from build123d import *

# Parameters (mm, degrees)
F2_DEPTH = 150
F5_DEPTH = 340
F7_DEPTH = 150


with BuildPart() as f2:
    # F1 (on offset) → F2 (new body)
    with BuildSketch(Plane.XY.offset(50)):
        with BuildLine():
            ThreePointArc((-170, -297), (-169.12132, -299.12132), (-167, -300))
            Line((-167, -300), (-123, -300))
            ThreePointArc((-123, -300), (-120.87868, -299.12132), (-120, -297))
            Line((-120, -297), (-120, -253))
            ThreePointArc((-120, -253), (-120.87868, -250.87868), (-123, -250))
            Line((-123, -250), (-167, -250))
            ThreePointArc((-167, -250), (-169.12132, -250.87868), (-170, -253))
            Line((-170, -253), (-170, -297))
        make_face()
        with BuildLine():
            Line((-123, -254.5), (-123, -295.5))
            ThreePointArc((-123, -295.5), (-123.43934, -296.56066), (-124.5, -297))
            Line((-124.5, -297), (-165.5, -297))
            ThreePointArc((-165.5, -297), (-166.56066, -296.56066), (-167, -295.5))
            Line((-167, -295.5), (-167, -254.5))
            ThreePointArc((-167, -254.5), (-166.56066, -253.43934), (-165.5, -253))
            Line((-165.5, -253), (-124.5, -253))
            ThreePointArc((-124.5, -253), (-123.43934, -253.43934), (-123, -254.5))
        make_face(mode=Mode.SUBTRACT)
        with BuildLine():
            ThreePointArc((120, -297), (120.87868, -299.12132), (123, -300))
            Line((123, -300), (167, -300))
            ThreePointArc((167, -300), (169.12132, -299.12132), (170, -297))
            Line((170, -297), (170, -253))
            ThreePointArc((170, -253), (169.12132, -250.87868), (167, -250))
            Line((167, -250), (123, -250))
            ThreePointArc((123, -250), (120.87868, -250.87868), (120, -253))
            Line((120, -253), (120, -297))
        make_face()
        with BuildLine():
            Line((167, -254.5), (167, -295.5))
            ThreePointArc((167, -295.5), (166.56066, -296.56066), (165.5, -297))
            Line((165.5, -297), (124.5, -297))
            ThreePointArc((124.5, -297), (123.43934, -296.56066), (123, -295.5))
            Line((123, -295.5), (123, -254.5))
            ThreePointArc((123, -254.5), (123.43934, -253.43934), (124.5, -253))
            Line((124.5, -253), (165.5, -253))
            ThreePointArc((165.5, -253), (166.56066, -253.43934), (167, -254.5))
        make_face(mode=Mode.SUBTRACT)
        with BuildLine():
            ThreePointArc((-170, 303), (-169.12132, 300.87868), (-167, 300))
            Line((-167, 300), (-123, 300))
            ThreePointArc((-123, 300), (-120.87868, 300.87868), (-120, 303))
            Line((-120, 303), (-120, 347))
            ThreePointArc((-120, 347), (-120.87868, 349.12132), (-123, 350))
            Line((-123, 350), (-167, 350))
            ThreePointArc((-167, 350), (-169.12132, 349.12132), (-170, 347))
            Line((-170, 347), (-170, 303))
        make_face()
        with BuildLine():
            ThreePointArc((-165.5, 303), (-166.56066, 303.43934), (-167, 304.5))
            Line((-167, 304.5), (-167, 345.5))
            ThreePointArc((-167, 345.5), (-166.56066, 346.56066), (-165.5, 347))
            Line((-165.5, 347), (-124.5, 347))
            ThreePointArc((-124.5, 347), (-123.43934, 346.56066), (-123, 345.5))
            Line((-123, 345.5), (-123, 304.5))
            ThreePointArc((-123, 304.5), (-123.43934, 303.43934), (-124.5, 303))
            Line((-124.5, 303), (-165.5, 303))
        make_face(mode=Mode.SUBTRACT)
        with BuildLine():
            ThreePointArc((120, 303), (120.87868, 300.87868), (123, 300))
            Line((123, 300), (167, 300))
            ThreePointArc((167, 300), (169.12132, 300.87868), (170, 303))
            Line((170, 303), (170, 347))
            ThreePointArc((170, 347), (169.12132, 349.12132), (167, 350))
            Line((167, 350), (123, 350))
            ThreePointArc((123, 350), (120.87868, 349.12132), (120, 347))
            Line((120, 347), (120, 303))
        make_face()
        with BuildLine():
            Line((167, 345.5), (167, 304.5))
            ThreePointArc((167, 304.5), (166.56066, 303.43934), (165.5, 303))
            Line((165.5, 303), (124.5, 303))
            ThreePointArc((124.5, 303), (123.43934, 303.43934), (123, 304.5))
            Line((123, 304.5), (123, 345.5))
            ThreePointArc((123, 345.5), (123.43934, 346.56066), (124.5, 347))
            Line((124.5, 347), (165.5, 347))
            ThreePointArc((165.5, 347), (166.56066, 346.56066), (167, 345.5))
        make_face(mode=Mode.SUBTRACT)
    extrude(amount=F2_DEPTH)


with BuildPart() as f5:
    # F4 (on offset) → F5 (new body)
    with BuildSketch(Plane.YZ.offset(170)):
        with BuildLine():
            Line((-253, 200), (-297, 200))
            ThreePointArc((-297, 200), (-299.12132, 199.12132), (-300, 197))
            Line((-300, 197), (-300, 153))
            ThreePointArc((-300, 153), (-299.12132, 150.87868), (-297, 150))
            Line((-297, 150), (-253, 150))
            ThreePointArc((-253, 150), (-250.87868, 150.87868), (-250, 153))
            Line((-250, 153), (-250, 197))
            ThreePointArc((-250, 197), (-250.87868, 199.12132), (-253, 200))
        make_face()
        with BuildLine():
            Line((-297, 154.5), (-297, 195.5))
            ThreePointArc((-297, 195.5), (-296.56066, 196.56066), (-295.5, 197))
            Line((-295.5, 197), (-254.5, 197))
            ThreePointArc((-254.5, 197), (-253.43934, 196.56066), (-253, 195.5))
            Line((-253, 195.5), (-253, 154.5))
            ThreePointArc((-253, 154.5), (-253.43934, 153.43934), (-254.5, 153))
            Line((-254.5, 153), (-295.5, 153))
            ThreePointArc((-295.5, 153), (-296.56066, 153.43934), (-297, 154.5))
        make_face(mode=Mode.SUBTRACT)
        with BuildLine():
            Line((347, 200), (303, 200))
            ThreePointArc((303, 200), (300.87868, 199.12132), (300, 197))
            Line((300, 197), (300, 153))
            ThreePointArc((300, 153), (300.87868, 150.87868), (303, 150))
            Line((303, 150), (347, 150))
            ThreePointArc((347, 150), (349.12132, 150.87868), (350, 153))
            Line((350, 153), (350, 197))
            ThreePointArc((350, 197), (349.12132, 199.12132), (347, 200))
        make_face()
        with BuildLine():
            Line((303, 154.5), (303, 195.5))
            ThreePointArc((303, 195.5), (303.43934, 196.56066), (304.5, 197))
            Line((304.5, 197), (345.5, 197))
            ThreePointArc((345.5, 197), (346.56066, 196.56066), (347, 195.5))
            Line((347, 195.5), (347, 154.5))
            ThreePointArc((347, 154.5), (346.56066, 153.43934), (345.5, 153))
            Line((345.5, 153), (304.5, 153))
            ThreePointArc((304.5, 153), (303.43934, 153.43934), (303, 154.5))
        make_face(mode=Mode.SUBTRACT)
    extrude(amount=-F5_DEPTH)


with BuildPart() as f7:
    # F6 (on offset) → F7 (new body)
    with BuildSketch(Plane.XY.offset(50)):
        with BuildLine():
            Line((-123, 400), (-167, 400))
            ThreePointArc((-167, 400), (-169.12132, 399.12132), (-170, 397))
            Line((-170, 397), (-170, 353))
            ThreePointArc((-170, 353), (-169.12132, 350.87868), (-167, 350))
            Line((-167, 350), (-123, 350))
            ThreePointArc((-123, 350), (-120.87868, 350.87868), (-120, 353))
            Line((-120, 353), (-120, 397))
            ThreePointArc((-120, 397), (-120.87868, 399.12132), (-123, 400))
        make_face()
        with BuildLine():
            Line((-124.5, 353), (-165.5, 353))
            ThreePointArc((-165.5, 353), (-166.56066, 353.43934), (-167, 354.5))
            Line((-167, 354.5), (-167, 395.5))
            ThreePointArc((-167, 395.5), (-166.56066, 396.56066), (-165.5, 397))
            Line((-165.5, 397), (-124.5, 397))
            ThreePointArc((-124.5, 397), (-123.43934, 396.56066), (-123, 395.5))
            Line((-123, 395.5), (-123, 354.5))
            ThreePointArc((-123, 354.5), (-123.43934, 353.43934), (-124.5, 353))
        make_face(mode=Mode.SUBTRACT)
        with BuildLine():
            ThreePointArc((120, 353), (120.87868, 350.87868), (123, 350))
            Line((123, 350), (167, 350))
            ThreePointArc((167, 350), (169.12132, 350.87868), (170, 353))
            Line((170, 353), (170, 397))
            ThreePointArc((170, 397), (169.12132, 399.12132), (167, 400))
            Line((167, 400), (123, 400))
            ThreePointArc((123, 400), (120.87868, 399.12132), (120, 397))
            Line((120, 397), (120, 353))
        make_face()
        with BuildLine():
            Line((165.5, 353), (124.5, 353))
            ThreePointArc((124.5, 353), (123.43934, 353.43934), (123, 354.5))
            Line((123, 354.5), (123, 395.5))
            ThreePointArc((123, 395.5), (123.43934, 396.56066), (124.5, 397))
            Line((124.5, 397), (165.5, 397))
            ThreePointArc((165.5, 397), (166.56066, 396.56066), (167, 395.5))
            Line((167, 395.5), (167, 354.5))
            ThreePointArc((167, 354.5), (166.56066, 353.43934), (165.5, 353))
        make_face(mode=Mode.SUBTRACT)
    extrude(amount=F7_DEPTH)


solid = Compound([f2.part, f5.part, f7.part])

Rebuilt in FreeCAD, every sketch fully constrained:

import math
import FreeCAD as App
import Part
import Sketcher
from FreeCAD import Vector

doc = App.newDocument("Part")
body = doc.addObject("PartDesign::Body", "Body")
body.AllowCompound = True

sketch1 = body.newObject("Sketcher::SketchObject", "Sketch")
sketch1.AttachmentSupport = (doc.getObject("XY_Plane"), [""])
sketch1.MapMode = "FlatFace"
sketch1.AttachmentOffset = App.Placement(Vector(0, 0, 50), App.Rotation())
sketch1.addGeometry([
    Part.ArcOfCircle(Part.Circle(Vector(-167, -297, 0), Vector(0, 0, 1), 3), math.radians(-180), math.radians(-90)),
    Part.LineSegment(Vector(-167, -300, 0), Vector(-123, -300, 0)),
    Part.ArcOfCircle(Part.Circle(Vector(-123, -297, 0), Vector(0, 0, 1), 3), math.radians(-90), math.radians(0)),
    Part.LineSegment(Vector(-120, -297, 0), Vector(-120, -253, 0)),
    Part.ArcOfCircle(Part.Circle(Vector(-123, -253, 0), Vector(0, 0, 1), 3), math.radians(0), math.radians(90)),
    Part.LineSegment(Vector(-123, -250, 0), Vector(-167, -250, 0)),
    Part.ArcOfCircle(Part.Circle(Vector(-167, -253, 0), Vector(0, 0, 1), 3), math.radians(90), math.radians(180)),
    Part.LineSegment(Vector(-170, -253, 0), Vector(-170, -297, 0)),
    Part.ArcOfCircle(Part.Circle(Vector(-124.5, -254.5, 0), Vector(0, 0, 1), 1.5), math.radians(0), math.radians(90)),
    Part.LineSegment(Vector(-123, -254.5, 0), Vector(-123, -295.5, 0)),
    Part.ArcOfCircle(Part.Circle(Vector(-124.5, -295.5, 0), Vector(0, 0, 1), 1.5), math.radians(-90), math.radians(0)),
    Part.LineSegment(Vector(-124.5, -297, 0), Vector(-165.5, -297, 0)),
    Part.ArcOfCircle(Part.Circle(Vector(-165.5, -295.5, 0), Vector(0, 0, 1), 1.5), math.radians(-180), math.radians(-90)),
    Part.LineSegment(Vector(-167, -295.5, 0), Vector(-167, -254.5, 0)),
    Part.ArcOfCircle(Part.Circle(Vector(-165.5, -254.5, 0), Vector(0, 0, 1), 1.5), math.radians(90), math.radians(180)),
    Part.LineSegment(Vector(-165.5, -253, 0), Vector(-124.5, -253, 0)),
    Part.ArcOfCircle(Part.Circle(Vector(123, -297, 0), Vector(0, 0, 1), 3), math.radians(-180), math.radians(-90)),
    Part.LineSegment(Vector(123, -300, 0), Vector(167, -300, 0)),
    Part.ArcOfCircle(Part.Circle(Vector(167, -297, 0), Vector(0, 0, 1), 3), math.radians(-90), math.radians(0)),
    Part.LineSegment(Vector(170, -297, 0), Vector(170, -253, 0)),
    Part.ArcOfCircle(Part.Circle(Vector(167, -253, 0), Vector(0, 0, 1), 3), math.radians(0), math.radians(90)),
    Part.LineSegment(Vector(167, -250, 0), Vector(123, -250, 0)),
    Part.ArcOfCircle(Part.Circle(Vector(123, -253, 0), Vector(0, 0, 1), 3), math.radians(90), math.radians(180)),
    Part.LineSegment(Vector(120, -253, 0), Vector(120, -297, 0)),
    Part.ArcOfCircle(Part.Circle(Vector(165.5, -254.5, 0), Vector(0, 0, 1), 1.5), math.radians(0), math.radians(90)),
    Part.LineSegment(Vector(167, -254.5, 0), Vector(167, -295.5, 0)),
    Part.ArcOfCircle(Part.Circle(Vector(165.5, -295.5, 0), Vector(0, 0, 1), 1.5), math.radians(-90), math.radians(0)),
    Part.LineSegment(Vector(165.5, -297, 0), Vector(124.5, -297, 0)),
    Part.ArcOfCircle(Part.Circle(Vector(124.5, -295.5, 0), Vector(0, 0, 1), 1.5), math.radians(-180), math.radians(-90)),
    Part.LineSegment(Vector(123, -295.5, 0), Vector(123, -254.5, 0)),
    Part.ArcOfCircle(Part.Circle(Vector(124.5, -254.5, 0), Vector(0, 0, 1), 1.5), math.radians(90), math.radians(180)),
    Part.LineSegment(Vector(124.5, -253, 0), Vector(165.5, -253, 0)),
    Part.ArcOfCircle(Part.Circle(Vector(-167, 303, 0), Vector(0, 0, 1), 3), math.radians(-180), math.radians(-90)),
    Part.LineSegment(Vector(-167, 300, 0), Vector(-123, 300, 0)),
    Part.ArcOfCircle(Part.Circle(Vector(-123, 303, 0), Vector(0, 0, 1), 3), math.radians(-90), math.radians(0)),
    Part.LineSegment(Vector(-120, 303, 0), Vector(-120, 347, 0)),
    Part.ArcOfCircle(Part.Circle(Vector(-123, 347, 0), Vector(0, 0, 1), 3), math.radians(0), math.radians(90)),
    Part.LineSegment(Vector(-123, 350, 0), Vector(-167, 350, 0)),
    Part.ArcOfCircle(Part.Circle(Vector(-167, 347, 0), Vector(0, 0, 1), 3), math.radians(90), math.radians(180)),
    Part.LineSegment(Vector(-170, 347, 0), Vector(-170, 303, 0)),
    Part.LineSegment(Vector(-124.5, 303, 0), Vector(-165.5, 303, 0)),
    Part.ArcOfCircle(Part.Circle(Vector(-165.5, 304.5, 0), Vector(0, 0, 1), 1.5), math.radians(-180), math.radians(-90)),
    Part.LineSegment(Vector(-167, 304.5, 0), Vector(-167, 345.5, 0)),
    Part.ArcOfCircle(Part.Circle(Vector(-165.5, 345.5, 0), Vector(0, 0, 1), 1.5), math.radians(90), math.radians(180)),
    Part.LineSegment(Vector(-165.5, 347, 0), Vector(-124.5, 347, 0)),
    Part.ArcOfCircle(Part.Circle(Vector(-124.5, 345.5, 0), Vector(0, 0, 1), 1.5), math.radians(0), math.radians(90)),
    Part.LineSegment(Vector(-123, 345.5, 0), Vector(-123, 304.5, 0)),
    Part.ArcOfCircle(Part.Circle(Vector(-124.5, 304.5, 0), Vector(0, 0, 1), 1.5), math.radians(-90), math.radians(0)),
    Part.ArcOfCircle(Part.Circle(Vector(123, 303, 0), Vector(0, 0, 1), 3), math.radians(-180), math.radians(-90)),
    Part.LineSegment(Vector(123, 300, 0), Vector(167, 300, 0)),
    Part.ArcOfCircle(Part.Circle(Vector(167, 303, 0), Vector(0, 0, 1), 3), math.radians(-90), math.radians(0)),
    Part.LineSegment(Vector(170, 303, 0), Vector(170, 347, 0)),
    Part.ArcOfCircle(Part.Circle(Vector(167, 347, 0), Vector(0, 0, 1), 3), math.radians(0), math.radians(90)),
    Part.LineSegment(Vector(167, 350, 0), Vector(123, 350, 0)),
    Part.ArcOfCircle(Part.Circle(Vector(123, 347, 0), Vector(0, 0, 1), 3), math.radians(90), math.radians(180)),
    Part.LineSegment(Vector(120, 347, 0), Vector(120, 303, 0)),
    Part.ArcOfCircle(Part.Circle(Vector(165.5, 345.5, 0), Vector(0, 0, 1), 1.5), math.radians(0), math.radians(90)),
    Part.LineSegment(Vector(167, 345.5, 0), Vector(167, 304.5, 0)),
    Part.ArcOfCircle(Part.Circle(Vector(165.5, 304.5, 0), Vector(0, 0, 1), 1.5), math.radians(-90), math.radians(0)),
    Part.LineSegment(Vector(165.5, 303, 0), Vector(124.5, 303, 0)),
    Part.ArcOfCircle(Part.Circle(Vector(124.5, 304.5, 0), Vector(0, 0, 1), 1.5), math.radians(-180), math.radians(-90)),
    Part.LineSegment(Vector(123, 304.5, 0), Vector(123, 345.5, 0)),
    Part.ArcOfCircle(Part.Circle(Vector(124.5, 345.5, 0), Vector(0, 0, 1), 1.5), math.radians(90), math.radians(180)),
    Part.LineSegment(Vector(124.5, 347, 0), Vector(165.5, 347, 0)),
], False)
sketch1.addConstraint([
    Sketcher.Constraint("Tangent", 0, 2, 1, 1),
    Sketcher.Constraint("Tangent", 1, 2, 2, 1),
    Sketcher.Constraint("Tangent", 2, 2, 3, 1),
    Sketcher.Constraint("Tangent", 3, 2, 4, 1),
    Sketcher.Constraint("Tangent", 4, 2, 5, 1),
    Sketcher.Constraint("Tangent", 5, 2, 6, 1),
    Sketcher.Constraint("Tangent", 6, 2, 7, 1),
    Sketcher.Constraint("Tangent", 7, 2, 0, 1),
    Sketcher.Constraint("Tangent", 8, 1, 9, 1),
    Sketcher.Constraint("Tangent", 9, 2, 10, 2),
    Sketcher.Constraint("Tangent", 10, 1, 11, 1),
    Sketcher.Constraint("Tangent", 11, 2, 12, 2),
    Sketcher.Constraint("Tangent", 12, 1, 13, 1),
    Sketcher.Constraint("Tangent", 13, 2, 14, 2),
    Sketcher.Constraint("Tangent", 14, 1, 15, 1),
    Sketcher.Constraint("Tangent", 15, 2, 8, 2),
    Sketcher.Constraint("Tangent", 16, 2, 17, 1),
    Sketcher.Constraint("Tangent", 17, 2, 18, 1),
    Sketcher.Constraint("Tangent", 18, 2, 19, 1),
    Sketcher.Constraint("Tangent", 19, 2, 20, 1),
    Sketcher.Constraint("Tangent", 20, 2, 21, 1),
    Sketcher.Constraint("Tangent", 21, 2, 22, 1),
    Sketcher.Constraint("Tangent", 22, 2, 23, 1),
    Sketcher.Constraint("Tangent", 23, 2, 16, 1),
    Sketcher.Constraint("Tangent", 24, 1, 25, 1),
    Sketcher.Constraint("Tangent", 25, 2, 26, 2),
    Sketcher.Constraint("Tangent", 26, 1, 27, 1),
    Sketcher.Constraint("Tangent", 27, 2, 28, 2),
    Sketcher.Constraint("Tangent", 28, 1, 29, 1),
    Sketcher.Constraint("Tangent", 29, 2, 30, 2),
    Sketcher.Constraint("Tangent", 30, 1, 31, 1),
    Sketcher.Constraint("Tangent", 31, 2, 24, 2),
    Sketcher.Constraint("Tangent", 32, 2, 33, 1),
    Sketcher.Constraint("Tangent", 33, 2, 34, 1),
    Sketcher.Constraint("Tangent", 34, 2, 35, 1),
    Sketcher.Constraint("Tangent", 35, 2, 36, 1),
    Sketcher.Constraint("Tangent", 36, 2, 37, 1),
    Sketcher.Constraint("Tangent", 37, 2, 38, 1),
    Sketcher.Constraint("Tangent", 38, 2, 39, 1),
    Sketcher.Constraint("Tangent", 39, 2, 32, 1),
    Sketcher.Constraint("Tangent", 40, 2, 41, 2),
    Sketcher.Constraint("Tangent", 41, 1, 42, 1),
    Sketcher.Constraint("Tangent", 42, 2, 43, 2),
    Sketcher.Constraint("Tangent", 43, 1, 44, 1),
    Sketcher.Constraint("Tangent", 44, 2, 45, 2),
    Sketcher.Constraint("Tangent", 45, 1, 46, 1),
    Sketcher.Constraint("Tangent", 46, 2, 47, 2),
    Sketcher.Constraint("Tangent", 47, 1, 40, 1),
    Sketcher.Constraint("Tangent", 48, 2, 49, 1),
    Sketcher.Constraint("Tangent", 49, 2, 50, 1),
    Sketcher.Constraint("Tangent", 50, 2, 51, 1),
    Sketcher.Constraint("Tangent", 51, 2, 52, 1),
    Sketcher.Constraint("Tangent", 52, 2, 53, 1),
    Sketcher.Constraint("Tangent", 53, 2, 54, 1),
    Sketcher.Constraint("Tangent", 54, 2, 55, 1),
    Sketcher.Constraint("Tangent", 55, 2, 48, 1),
    Sketcher.Constraint("Tangent", 56, 1, 57, 1),
    Sketcher.Constraint("Tangent", 57, 2, 58, 2),
    Sketcher.Constraint("Tangent", 58, 1, 59, 1),
    Sketcher.Constraint("Tangent", 59, 2, 60, 2),
    Sketcher.Constraint("Tangent", 60, 1, 61, 1),
    Sketcher.Constraint("Tangent", 61, 2, 62, 2),
    Sketcher.Constraint("Tangent", 62, 1, 63, 1),
    Sketcher.Constraint("Tangent", 63, 2, 56, 2),
    Sketcher.Constraint("Horizontal", 1),
    Sketcher.Constraint("Vertical", 3),
    Sketcher.Constraint("Horizontal", 5),
    Sketcher.Constraint("Vertical", 7),
    Sketcher.Constraint("Vertical", 9),
    Sketcher.Constraint("Horizontal", 11),
    Sketcher.Constraint("Vertical", 13),
    Sketcher.Constraint("Horizontal", 15),
    Sketcher.Constraint("Horizontal", 17),
    Sketcher.Constraint("Vertical", 19),
    Sketcher.Constraint("Horizontal", 21),
    Sketcher.Constraint("Vertical", 23),
    Sketcher.Constraint("Vertical", 25),
    Sketcher.Constraint("Horizontal", 27),
    Sketcher.Constraint("Vertical", 29),
    Sketcher.Constraint("Horizontal", 31),
    Sketcher.Constraint("Horizontal", 33),
    Sketcher.Constraint("Vertical", 35),
    Sketcher.Constraint("Horizontal", 37),
    Sketcher.Constraint("Vertical", 39),
    Sketcher.Constraint("Horizontal", 40),
    Sketcher.Constraint("Vertical", 42),
    Sketcher.Constraint("Horizontal", 44),
    Sketcher.Constraint("Vertical", 46),
    Sketcher.Constraint("Horizontal", 49),
    Sketcher.Constraint("Vertical", 51),
    Sketcher.Constraint("Horizontal", 53),
    Sketcher.Constraint("Vertical", 55),
    Sketcher.Constraint("Vertical", 57),
    Sketcher.Constraint("Horizontal", 59),
    Sketcher.Constraint("Vertical", 61),
    Sketcher.Constraint("Horizontal", 63),
    Sketcher.Constraint("Equal", 0, 2),
    Sketcher.Constraint("Equal", 2, 4),
    Sketcher.Constraint("Equal", 4, 6),
    Sketcher.Constraint("Equal", 8, 10),
    Sketcher.Constraint("Equal", 10, 12),
    Sketcher.Constraint("Equal", 12, 14),
    Sketcher.Constraint("Equal", 6, 16),
    Sketcher.Constraint("Equal", 16, 18),
    Sketcher.Constraint("Equal", 18, 20),
    Sketcher.Constraint("Equal", 20, 22),
    Sketcher.Constraint("Equal", 14, 24),
    Sketcher.Constraint("Equal", 24, 26),
    Sketcher.Constraint("Equal", 26, 28),
    Sketcher.Constraint("Equal", 28, 30),
    Sketcher.Constraint("Equal", 22, 32),
    Sketcher.Constraint("Equal", 32, 34),
    Sketcher.Constraint("Equal", 34, 36),
    Sketcher.Constraint("Equal", 36, 38),
    Sketcher.Constraint("Equal", 30, 41),
    Sketcher.Constraint("Equal", 41, 43),
    Sketcher.Constraint("Equal", 43, 45),
    Sketcher.Constraint("Equal", 45, 47),
    Sketcher.Constraint("Equal", 38, 48),
    Sketcher.Constraint("Equal", 48, 50),
    Sketcher.Constraint("Equal", 50, 52),
    Sketcher.Constraint("Equal", 52, 54),
    Sketcher.Constraint("Equal", 47, 56),
    Sketcher.Constraint("Equal", 56, 58),
    Sketcher.Constraint("Equal", 58, 60),
    Sketcher.Constraint("Equal", 60, 62),
    Sketcher.Constraint("Symmetric", 17, 2, 32, 2, -1, 1),
    Sketcher.Constraint("Symmetric", 1, 2, 48, 2, -1, 1),
    Sketcher.Constraint("Symmetric", 2, 3, 16, 3, -2),
    Sketcher.Constraint("Symmetric", 6, 3, 20, 3, -2),
    Sketcher.Constraint("Symmetric", 14, 3, 24, 3, -2),
    Sketcher.Constraint("Symmetric", 10, 3, 28, 3, -2),
    Sketcher.Constraint("Symmetric", 38, 3, 52, 3, -2),
    Sketcher.Constraint("Symmetric", 43, 3, 56, 3, -2),
    Sketcher.Constraint("Symmetric", 47, 3, 60, 3, -2),
    Sketcher.Constraint("Horizontal", 7, 2, 10, 1),
    Sketcher.Constraint("Horizontal", 6, 2, 14, 1),
    Sketcher.Constraint("Horizontal", 39, 2, 40, 2),
    Sketcher.Constraint("Horizontal", 38, 2, 43, 1),
    Sketcher.Constraint("Vertical", 4, 3, 34, 3),
    Sketcher.Constraint("Vertical", 14, 3, 41, 3),
    Sketcher.Constraint("Vertical", 10, 3, 45, 3),
    Sketcher.Constraint("Vertical", 4, 2, 8, 1),
    Sketcher.Constraint("Vertical", 5, 2, 12, 1),
    Sketcher.Constraint("Equal", 53, 3),
    Sketcher.Constraint("Equal", 23, 35),
    Sketcher.Constraint("Radius", 0, 3.000001),
    Sketcher.Constraint("Radius", 8, 1.500001),
    Sketcher.Constraint("DistanceX", 1, 1, 1, 2, 44.0),
    Sketcher.Constraint("DistanceX", 0, 3, -1, 1, 166.999999),
    Sketcher.Constraint("DistanceY", 0, 3, -1, 1, 296.999999),
])
pad1 = body.newObject("PartDesign::Pad", "Pad")
pad1.Profile = sketch1
pad1.Length = 150
body2 = doc.addObject("PartDesign::Body", "Body001")
body2.AllowCompound = True

sketch2 = body2.newObject("Sketcher::SketchObject", "Sketch001")
sketch2.AttachmentSupport = (doc.getObject("YZ_Plane001"), [""])
sketch2.MapMode = "FlatFace"
sketch2.AttachmentOffset = App.Placement(Vector(0, 0, 170), App.Rotation())
sketch2.addGeometry([
    Part.LineSegment(Vector(-253, 200, 0), Vector(-297, 200, 0)),
    Part.ArcOfCircle(Part.Circle(Vector(-297, 197, 0), Vector(0, 0, 1), 3), math.radians(90), math.radians(180)),
    Part.LineSegment(Vector(-300, 197, 0), Vector(-300, 153, 0)),
    Part.ArcOfCircle(Part.Circle(Vector(-297, 153, 0), Vector(0, 0, 1), 3), math.radians(-180), math.radians(-90)),
    Part.LineSegment(Vector(-297, 150, 0), Vector(-253, 150, 0)),
    Part.ArcOfCircle(Part.Circle(Vector(-253, 153, 0), Vector(0, 0, 1), 3), math.radians(-90), math.radians(0)),
    Part.LineSegment(Vector(-250, 153, 0), Vector(-250, 197, 0)),
    Part.ArcOfCircle(Part.Circle(Vector(-253, 197, 0), Vector(0, 0, 1), 3), math.radians(0), math.radians(90)),
    Part.ArcOfCircle(Part.Circle(Vector(-295.5, 154.5, 0), Vector(0, 0, 1), 1.5), math.radians(-180), math.radians(-90)),
    Part.LineSegment(Vector(-297, 154.5, 0), Vector(-297, 195.5, 0)),
    Part.ArcOfCircle(Part.Circle(Vector(-295.5, 195.5, 0), Vector(0, 0, 1), 1.5), math.radians(90), math.radians(180)),
    Part.LineSegment(Vector(-295.5, 197, 0), Vector(-254.5, 197, 0)),
    Part.ArcOfCircle(Part.Circle(Vector(-254.5, 195.5, 0), Vector(0, 0, 1), 1.5), math.radians(0), math.radians(90)),
    Part.LineSegment(Vector(-253, 195.5, 0), Vector(-253, 154.5, 0)),
    Part.ArcOfCircle(Part.Circle(Vector(-254.5, 154.5, 0), Vector(0, 0, 1), 1.5), math.radians(-90), math.radians(0)),
    Part.LineSegment(Vector(-254.5, 153, 0), Vector(-295.5, 153, 0)),
    Part.LineSegment(Vector(347, 200, 0), Vector(303, 200, 0)),
    Part.ArcOfCircle(Part.Circle(Vector(303, 197, 0), Vector(0, 0, 1), 3), math.radians(90), math.radians(180)),
    Part.LineSegment(Vector(300, 197, 0), Vector(300, 153, 0)),
    Part.ArcOfCircle(Part.Circle(Vector(303, 153, 0), Vector(0, 0, 1), 3), math.radians(-180), math.radians(-90)),
    Part.LineSegment(Vector(303, 150, 0), Vector(347, 150, 0)),
    Part.ArcOfCircle(Part.Circle(Vector(347, 153, 0), Vector(0, 0, 1), 3), math.radians(-90), math.radians(0)),
    Part.LineSegment(Vector(350, 153, 0), Vector(350, 197, 0)),
    Part.ArcOfCircle(Part.Circle(Vector(347, 197, 0), Vector(0, 0, 1), 3), math.radians(0), math.radians(90)),
    Part.ArcOfCircle(Part.Circle(Vector(304.5, 154.5, 0), Vector(0, 0, 1), 1.5), math.radians(-180), math.radians(-90)),
    Part.LineSegment(Vector(303, 154.5, 0), Vector(303, 195.5, 0)),
    Part.ArcOfCircle(Part.Circle(Vector(304.5, 195.5, 0), Vector(0, 0, 1), 1.5), math.radians(90), math.radians(180)),
    Part.LineSegment(Vector(304.5, 197, 0), Vector(345.5, 197, 0)),
    Part.ArcOfCircle(Part.Circle(Vector(345.5, 195.5, 0), Vector(0, 0, 1), 1.5), math.radians(0), math.radians(90)),
    Part.LineSegment(Vector(347, 195.5, 0), Vector(347, 154.5, 0)),
    Part.ArcOfCircle(Part.Circle(Vector(345.5, 154.5, 0), Vector(0, 0, 1), 1.5), math.radians(-90), math.radians(0)),
    Part.LineSegment(Vector(345.5, 153, 0), Vector(304.5, 153, 0)),
], False)
sketch2.addConstraint([
    Sketcher.Constraint("Tangent", 0, 2, 1, 1),
    Sketcher.Constraint("Tangent", 1, 2, 2, 1),
    Sketcher.Constraint("Tangent", 2, 2, 3, 1),
    Sketcher.Constraint("Tangent", 3, 2, 4, 1),
    Sketcher.Constraint("Tangent", 4, 2, 5, 1),
    Sketcher.Constraint("Tangent", 5, 2, 6, 1),
    Sketcher.Constraint("Tangent", 6, 2, 7, 1),
    Sketcher.Constraint("Tangent", 7, 2, 0, 1),
    Sketcher.Constraint("Tangent", 8, 1, 9, 1),
    Sketcher.Constraint("Tangent", 9, 2, 10, 2),
    Sketcher.Constraint("Tangent", 10, 1, 11, 1),
    Sketcher.Constraint("Tangent", 11, 2, 12, 2),
    Sketcher.Constraint("Tangent", 12, 1, 13, 1),
    Sketcher.Constraint("Tangent", 13, 2, 14, 2),
    Sketcher.Constraint("Tangent", 14, 1, 15, 1),
    Sketcher.Constraint("Tangent", 15, 2, 8, 2),
    Sketcher.Constraint("Tangent", 16, 2, 17, 1),
    Sketcher.Constraint("Tangent", 17, 2, 18, 1),
    Sketcher.Constraint("Tangent", 18, 2, 19, 1),
    Sketcher.Constraint("Tangent", 19, 2, 20, 1),
    Sketcher.Constraint("Tangent", 20, 2, 21, 1),
    Sketcher.Constraint("Tangent", 21, 2, 22, 1),
    Sketcher.Constraint("Tangent", 22, 2, 23, 1),
    Sketcher.Constraint("Tangent", 23, 2, 16, 1),
    Sketcher.Constraint("Tangent", 24, 1, 25, 1),
    Sketcher.Constraint("Tangent", 25, 2, 26, 2),
    Sketcher.Constraint("Tangent", 26, 1, 27, 1),
    Sketcher.Constraint("Tangent", 27, 2, 28, 2),
    Sketcher.Constraint("Tangent", 28, 1, 29, 1),
    Sketcher.Constraint("Tangent", 29, 2, 30, 2),
    Sketcher.Constraint("Tangent", 30, 1, 31, 1),
    Sketcher.Constraint("Tangent", 31, 2, 24, 2),
    Sketcher.Constraint("Horizontal", 0),
    Sketcher.Constraint("Vertical", 2),
    Sketcher.Constraint("Horizontal", 4),
    Sketcher.Constraint("Vertical", 6),
    Sketcher.Constraint("Vertical", 9),
    Sketcher.Constraint("Horizontal", 11),
    Sketcher.Constraint("Vertical", 13),
    Sketcher.Constraint("Horizontal", 15),
    Sketcher.Constraint("Horizontal", 16),
    Sketcher.Constraint("Vertical", 18),
    Sketcher.Constraint("Horizontal", 20),
    Sketcher.Constraint("Vertical", 22),
    Sketcher.Constraint("Vertical", 25),
    Sketcher.Constraint("Horizontal", 27),
    Sketcher.Constraint("Vertical", 29),
    Sketcher.Constraint("Horizontal", 31),
    Sketcher.Constraint("Equal", 1, 3),
    Sketcher.Constraint("Equal", 3, 5),
    Sketcher.Constraint("Equal", 5, 7),
    Sketcher.Constraint("Equal", 8, 10),
    Sketcher.Constraint("Equal", 10, 12),
    Sketcher.Constraint("Equal", 12, 14),
    Sketcher.Constraint("Equal", 7, 17),
    Sketcher.Constraint("Equal", 17, 19),
    Sketcher.Constraint("Equal", 19, 21),
    Sketcher.Constraint("Equal", 21, 23),
    Sketcher.Constraint("Equal", 14, 24),
    Sketcher.Constraint("Equal", 24, 26),
    Sketcher.Constraint("Equal", 26, 28),
    Sketcher.Constraint("Equal", 28, 30),
    Sketcher.Constraint("Symmetric", 1, 2, 17, 2, -2),
    Sketcher.Constraint("Horizontal", 5, 3, 19, 3),
    Sketcher.Constraint("Horizontal", 14, 3, 24, 3),
    Sketcher.Constraint("Horizontal", 12, 3, 26, 3),
    Sketcher.Constraint("Horizontal", 6, 2, 10, 1),
    Sketcher.Constraint("Horizontal", 5, 2, 14, 1),
    Sketcher.Constraint("Vertical", 3, 2, 8, 1),
    Sketcher.Constraint("Vertical", 7, 2, 12, 1),
    Sketcher.Constraint("Vertical", 19, 2, 24, 1),
    Sketcher.Constraint("Vertical", 23, 2, 28, 1),
    Sketcher.Constraint("Equal", 4, 16),
    Sketcher.Constraint("Equal", 20, 2),
    Sketcher.Constraint("Radius", 1, 3.000001),
    Sketcher.Constraint("Radius", 8, 1.500001),
    Sketcher.Constraint("DistanceX", 0, 2, 0, 1, 44.0),
    Sketcher.Constraint("DistanceX", 1, 3, -1, 1, 296.999999),
    Sketcher.Constraint("DistanceY", -1, 1, 1, 3, 196.999999),
])
pad2 = body2.newObject("PartDesign::Pad", "Pad001")
pad2.Profile = sketch2
pad2.Length = 340
pad2.Reversed = True
body3 = doc.addObject("PartDesign::Body", "Body002")
body3.AllowCompound = True

sketch3 = body3.newObject("Sketcher::SketchObject", "Sketch002")
sketch3.AttachmentSupport = (doc.getObject("XY_Plane002"), [""])
sketch3.MapMode = "FlatFace"
sketch3.AttachmentOffset = App.Placement(Vector(0, 0, 50), App.Rotation())
sketch3.addGeometry([
    Part.LineSegment(Vector(-123, 400, 0), Vector(-167, 400, 0)),
    Part.ArcOfCircle(Part.Circle(Vector(-167, 397, 0), Vector(0, 0, 1), 3), math.radians(90), math.radians(180)),
    Part.LineSegment(Vector(-170, 397, 0), Vector(-170, 353, 0)),
    Part.ArcOfCircle(Part.Circle(Vector(-167, 353, 0), Vector(0, 0, 1), 3), math.radians(-180), math.radians(-90)),
    Part.LineSegment(Vector(-167, 350, 0), Vector(-123, 350, 0)),
    Part.ArcOfCircle(Part.Circle(Vector(-123, 353, 0), Vector(0, 0, 1), 3), math.radians(-90), math.radians(0)),
    Part.LineSegment(Vector(-120, 353, 0), Vector(-120, 397, 0)),
    Part.ArcOfCircle(Part.Circle(Vector(-123, 397, 0), Vector(0, 0, 1), 3), math.radians(0), math.radians(90)),
    Part.ArcOfCircle(Part.Circle(Vector(-124.5, 354.5, 0), Vector(0, 0, 1), 1.5), math.radians(-90), math.radians(0)),
    Part.LineSegment(Vector(-124.5, 353, 0), Vector(-165.5, 353, 0)),
    Part.ArcOfCircle(Part.Circle(Vector(-165.5, 354.5, 0), Vector(0, 0, 1), 1.5), math.radians(-180), math.radians(-90)),
    Part.LineSegment(Vector(-167, 354.5, 0), Vector(-167, 395.5, 0)),
    Part.ArcOfCircle(Part.Circle(Vector(-165.5, 395.5, 0), Vector(0, 0, 1), 1.5), math.radians(90), math.radians(180)),
    Part.LineSegment(Vector(-165.5, 397, 0), Vector(-124.5, 397, 0)),
    Part.ArcOfCircle(Part.Circle(Vector(-124.5, 395.5, 0), Vector(0, 0, 1), 1.5), math.radians(0), math.radians(90)),
    Part.LineSegment(Vector(-123, 395.5, 0), Vector(-123, 354.5, 0)),
    Part.ArcOfCircle(Part.Circle(Vector(123, 353, 0), Vector(0, 0, 1), 3), math.radians(-180), math.radians(-90)),
    Part.LineSegment(Vector(123, 350, 0), Vector(167, 350, 0)),
    Part.ArcOfCircle(Part.Circle(Vector(167, 353, 0), Vector(0, 0, 1), 3), math.radians(-90), math.radians(0)),
    Part.LineSegment(Vector(170, 353, 0), Vector(170, 397, 0)),
    Part.ArcOfCircle(Part.Circle(Vector(167, 397, 0), Vector(0, 0, 1), 3), math.radians(0), math.radians(90)),
    Part.LineSegment(Vector(167, 400, 0), Vector(123, 400, 0)),
    Part.ArcOfCircle(Part.Circle(Vector(123, 397, 0), Vector(0, 0, 1), 3), math.radians(90), math.radians(180)),
    Part.LineSegment(Vector(120, 397, 0), Vector(120, 353, 0)),
    Part.ArcOfCircle(Part.Circle(Vector(165.5, 354.5, 0), Vector(0, 0, 1), 1.5), math.radians(-90), math.radians(0)),
    Part.LineSegment(Vector(165.5, 353, 0), Vector(124.5, 353, 0)),
    Part.ArcOfCircle(Part.Circle(Vector(124.5, 354.5, 0), Vector(0, 0, 1), 1.5), math.radians(-180), math.radians(-90)),
    Part.LineSegment(Vector(123, 354.5, 0), Vector(123, 395.5, 0)),
    Part.ArcOfCircle(Part.Circle(Vector(124.5, 395.5, 0), Vector(0, 0, 1), 1.5), math.radians(90), math.radians(180)),
    Part.LineSegment(Vector(124.5, 397, 0), Vector(165.5, 397, 0)),
    Part.ArcOfCircle(Part.Circle(Vector(165.5, 395.5, 0), Vector(0, 0, 1), 1.5), math.radians(0), math.radians(90)),
    Part.LineSegment(Vector(167, 395.5, 0), Vector(167, 354.5, 0)),
], False)
sketch3.addConstraint([
    Sketcher.Constraint("Tangent", 0, 2, 1, 1),
    Sketcher.Constraint("Tangent", 1, 2, 2, 1),
    Sketcher.Constraint("Tangent", 2, 2, 3, 1),
    Sketcher.Constraint("Tangent", 3, 2, 4, 1),
    Sketcher.Constraint("Tangent", 4, 2, 5, 1),
    Sketcher.Constraint("Tangent", 5, 2, 6, 1),
    Sketcher.Constraint("Tangent", 6, 2, 7, 1),
    Sketcher.Constraint("Tangent", 7, 2, 0, 1),
    Sketcher.Constraint("Tangent", 8, 1, 9, 1),
    Sketcher.Constraint("Tangent", 9, 2, 10, 2),
    Sketcher.Constraint("Tangent", 10, 1, 11, 1),
    Sketcher.Constraint("Tangent", 11, 2, 12, 2),
    Sketcher.Constraint("Tangent", 12, 1, 13, 1),
    Sketcher.Constraint("Tangent", 13, 2, 14, 2),
    Sketcher.Constraint("Tangent", 14, 1, 15, 1),
    Sketcher.Constraint("Tangent", 15, 2, 8, 2),
    Sketcher.Constraint("Tangent", 16, 2, 17, 1),
    Sketcher.Constraint("Tangent", 17, 2, 18, 1),
    Sketcher.Constraint("Tangent", 18, 2, 19, 1),
    Sketcher.Constraint("Tangent", 19, 2, 20, 1),
    Sketcher.Constraint("Tangent", 20, 2, 21, 1),
    Sketcher.Constraint("Tangent", 21, 2, 22, 1),
    Sketcher.Constraint("Tangent", 22, 2, 23, 1),
    Sketcher.Constraint("Tangent", 23, 2, 16, 1),
    Sketcher.Constraint("Tangent", 24, 1, 25, 1),
    Sketcher.Constraint("Tangent", 25, 2, 26, 2),
    Sketcher.Constraint("Tangent", 26, 1, 27, 1),
    Sketcher.Constraint("Tangent", 27, 2, 28, 2),
    Sketcher.Constraint("Tangent", 28, 1, 29, 1),
    Sketcher.Constraint("Tangent", 29, 2, 30, 2),
    Sketcher.Constraint("Tangent", 30, 1, 31, 1),
    Sketcher.Constraint("Tangent", 31, 2, 24, 2),
    Sketcher.Constraint("Horizontal", 0),
    Sketcher.Constraint("Vertical", 2),
    Sketcher.Constraint("Horizontal", 4),
    Sketcher.Constraint("Vertical", 6),
    Sketcher.Constraint("Horizontal", 9),
    Sketcher.Constraint("Vertical", 11),
    Sketcher.Constraint("Horizontal", 13),
    Sketcher.Constraint("Vertical", 15),
    Sketcher.Constraint("Horizontal", 17),
    Sketcher.Constraint("Vertical", 19),
    Sketcher.Constraint("Horizontal", 21),
    Sketcher.Constraint("Vertical", 23),
    Sketcher.Constraint("Horizontal", 25),
    Sketcher.Constraint("Vertical", 27),
    Sketcher.Constraint("Horizontal", 29),
    Sketcher.Constraint("Vertical", 31),
    Sketcher.Constraint("Equal", 1, 3),
    Sketcher.Constraint("Equal", 3, 5),
    Sketcher.Constraint("Equal", 5, 7),
    Sketcher.Constraint("Equal", 8, 10),
    Sketcher.Constraint("Equal", 10, 12),
    Sketcher.Constraint("Equal", 12, 14),
    Sketcher.Constraint("Equal", 7, 16),
    Sketcher.Constraint("Equal", 16, 18),
    Sketcher.Constraint("Equal", 18, 20),
    Sketcher.Constraint("Equal", 20, 22),
    Sketcher.Constraint("Equal", 14, 24),
    Sketcher.Constraint("Equal", 24, 26),
    Sketcher.Constraint("Equal", 26, 28),
    Sketcher.Constraint("Equal", 28, 30),
    Sketcher.Constraint("Symmetric", 5, 3, 16, 3, -2),
    Sketcher.Constraint("Symmetric", 1, 3, 20, 3, -2),
    Sketcher.Constraint("Symmetric", 10, 3, 24, 3, -2),
    Sketcher.Constraint("Symmetric", 14, 3, 28, 3, -2),
    Sketcher.Constraint("Horizontal", 5, 2, 8, 1),
    Sketcher.Constraint("Horizontal", 6, 2, 12, 1),
    Sketcher.Constraint("Vertical", 3, 2, 10, 1),
    Sketcher.Constraint("Vertical", 7, 2, 14, 1),
    Sketcher.Constraint("Equal", 21, 2),
    Sketcher.Constraint("Radius", 1, 3.000001),
    Sketcher.Constraint("Radius", 8, 1.500001),
    Sketcher.Constraint("DistanceX", 0, 2, 0, 1, 44.0),
    Sketcher.Constraint("DistanceX", 1, 3, -1, 1, 166.999999),
    Sketcher.Constraint("DistanceY", -1, 1, 1, 3, 396.999999),
])
pad3 = body3.newObject("PartDesign::Pad", "Pad002")
pad3.Profile = sketch3
pad3.Length = 150

doc.recompute()
